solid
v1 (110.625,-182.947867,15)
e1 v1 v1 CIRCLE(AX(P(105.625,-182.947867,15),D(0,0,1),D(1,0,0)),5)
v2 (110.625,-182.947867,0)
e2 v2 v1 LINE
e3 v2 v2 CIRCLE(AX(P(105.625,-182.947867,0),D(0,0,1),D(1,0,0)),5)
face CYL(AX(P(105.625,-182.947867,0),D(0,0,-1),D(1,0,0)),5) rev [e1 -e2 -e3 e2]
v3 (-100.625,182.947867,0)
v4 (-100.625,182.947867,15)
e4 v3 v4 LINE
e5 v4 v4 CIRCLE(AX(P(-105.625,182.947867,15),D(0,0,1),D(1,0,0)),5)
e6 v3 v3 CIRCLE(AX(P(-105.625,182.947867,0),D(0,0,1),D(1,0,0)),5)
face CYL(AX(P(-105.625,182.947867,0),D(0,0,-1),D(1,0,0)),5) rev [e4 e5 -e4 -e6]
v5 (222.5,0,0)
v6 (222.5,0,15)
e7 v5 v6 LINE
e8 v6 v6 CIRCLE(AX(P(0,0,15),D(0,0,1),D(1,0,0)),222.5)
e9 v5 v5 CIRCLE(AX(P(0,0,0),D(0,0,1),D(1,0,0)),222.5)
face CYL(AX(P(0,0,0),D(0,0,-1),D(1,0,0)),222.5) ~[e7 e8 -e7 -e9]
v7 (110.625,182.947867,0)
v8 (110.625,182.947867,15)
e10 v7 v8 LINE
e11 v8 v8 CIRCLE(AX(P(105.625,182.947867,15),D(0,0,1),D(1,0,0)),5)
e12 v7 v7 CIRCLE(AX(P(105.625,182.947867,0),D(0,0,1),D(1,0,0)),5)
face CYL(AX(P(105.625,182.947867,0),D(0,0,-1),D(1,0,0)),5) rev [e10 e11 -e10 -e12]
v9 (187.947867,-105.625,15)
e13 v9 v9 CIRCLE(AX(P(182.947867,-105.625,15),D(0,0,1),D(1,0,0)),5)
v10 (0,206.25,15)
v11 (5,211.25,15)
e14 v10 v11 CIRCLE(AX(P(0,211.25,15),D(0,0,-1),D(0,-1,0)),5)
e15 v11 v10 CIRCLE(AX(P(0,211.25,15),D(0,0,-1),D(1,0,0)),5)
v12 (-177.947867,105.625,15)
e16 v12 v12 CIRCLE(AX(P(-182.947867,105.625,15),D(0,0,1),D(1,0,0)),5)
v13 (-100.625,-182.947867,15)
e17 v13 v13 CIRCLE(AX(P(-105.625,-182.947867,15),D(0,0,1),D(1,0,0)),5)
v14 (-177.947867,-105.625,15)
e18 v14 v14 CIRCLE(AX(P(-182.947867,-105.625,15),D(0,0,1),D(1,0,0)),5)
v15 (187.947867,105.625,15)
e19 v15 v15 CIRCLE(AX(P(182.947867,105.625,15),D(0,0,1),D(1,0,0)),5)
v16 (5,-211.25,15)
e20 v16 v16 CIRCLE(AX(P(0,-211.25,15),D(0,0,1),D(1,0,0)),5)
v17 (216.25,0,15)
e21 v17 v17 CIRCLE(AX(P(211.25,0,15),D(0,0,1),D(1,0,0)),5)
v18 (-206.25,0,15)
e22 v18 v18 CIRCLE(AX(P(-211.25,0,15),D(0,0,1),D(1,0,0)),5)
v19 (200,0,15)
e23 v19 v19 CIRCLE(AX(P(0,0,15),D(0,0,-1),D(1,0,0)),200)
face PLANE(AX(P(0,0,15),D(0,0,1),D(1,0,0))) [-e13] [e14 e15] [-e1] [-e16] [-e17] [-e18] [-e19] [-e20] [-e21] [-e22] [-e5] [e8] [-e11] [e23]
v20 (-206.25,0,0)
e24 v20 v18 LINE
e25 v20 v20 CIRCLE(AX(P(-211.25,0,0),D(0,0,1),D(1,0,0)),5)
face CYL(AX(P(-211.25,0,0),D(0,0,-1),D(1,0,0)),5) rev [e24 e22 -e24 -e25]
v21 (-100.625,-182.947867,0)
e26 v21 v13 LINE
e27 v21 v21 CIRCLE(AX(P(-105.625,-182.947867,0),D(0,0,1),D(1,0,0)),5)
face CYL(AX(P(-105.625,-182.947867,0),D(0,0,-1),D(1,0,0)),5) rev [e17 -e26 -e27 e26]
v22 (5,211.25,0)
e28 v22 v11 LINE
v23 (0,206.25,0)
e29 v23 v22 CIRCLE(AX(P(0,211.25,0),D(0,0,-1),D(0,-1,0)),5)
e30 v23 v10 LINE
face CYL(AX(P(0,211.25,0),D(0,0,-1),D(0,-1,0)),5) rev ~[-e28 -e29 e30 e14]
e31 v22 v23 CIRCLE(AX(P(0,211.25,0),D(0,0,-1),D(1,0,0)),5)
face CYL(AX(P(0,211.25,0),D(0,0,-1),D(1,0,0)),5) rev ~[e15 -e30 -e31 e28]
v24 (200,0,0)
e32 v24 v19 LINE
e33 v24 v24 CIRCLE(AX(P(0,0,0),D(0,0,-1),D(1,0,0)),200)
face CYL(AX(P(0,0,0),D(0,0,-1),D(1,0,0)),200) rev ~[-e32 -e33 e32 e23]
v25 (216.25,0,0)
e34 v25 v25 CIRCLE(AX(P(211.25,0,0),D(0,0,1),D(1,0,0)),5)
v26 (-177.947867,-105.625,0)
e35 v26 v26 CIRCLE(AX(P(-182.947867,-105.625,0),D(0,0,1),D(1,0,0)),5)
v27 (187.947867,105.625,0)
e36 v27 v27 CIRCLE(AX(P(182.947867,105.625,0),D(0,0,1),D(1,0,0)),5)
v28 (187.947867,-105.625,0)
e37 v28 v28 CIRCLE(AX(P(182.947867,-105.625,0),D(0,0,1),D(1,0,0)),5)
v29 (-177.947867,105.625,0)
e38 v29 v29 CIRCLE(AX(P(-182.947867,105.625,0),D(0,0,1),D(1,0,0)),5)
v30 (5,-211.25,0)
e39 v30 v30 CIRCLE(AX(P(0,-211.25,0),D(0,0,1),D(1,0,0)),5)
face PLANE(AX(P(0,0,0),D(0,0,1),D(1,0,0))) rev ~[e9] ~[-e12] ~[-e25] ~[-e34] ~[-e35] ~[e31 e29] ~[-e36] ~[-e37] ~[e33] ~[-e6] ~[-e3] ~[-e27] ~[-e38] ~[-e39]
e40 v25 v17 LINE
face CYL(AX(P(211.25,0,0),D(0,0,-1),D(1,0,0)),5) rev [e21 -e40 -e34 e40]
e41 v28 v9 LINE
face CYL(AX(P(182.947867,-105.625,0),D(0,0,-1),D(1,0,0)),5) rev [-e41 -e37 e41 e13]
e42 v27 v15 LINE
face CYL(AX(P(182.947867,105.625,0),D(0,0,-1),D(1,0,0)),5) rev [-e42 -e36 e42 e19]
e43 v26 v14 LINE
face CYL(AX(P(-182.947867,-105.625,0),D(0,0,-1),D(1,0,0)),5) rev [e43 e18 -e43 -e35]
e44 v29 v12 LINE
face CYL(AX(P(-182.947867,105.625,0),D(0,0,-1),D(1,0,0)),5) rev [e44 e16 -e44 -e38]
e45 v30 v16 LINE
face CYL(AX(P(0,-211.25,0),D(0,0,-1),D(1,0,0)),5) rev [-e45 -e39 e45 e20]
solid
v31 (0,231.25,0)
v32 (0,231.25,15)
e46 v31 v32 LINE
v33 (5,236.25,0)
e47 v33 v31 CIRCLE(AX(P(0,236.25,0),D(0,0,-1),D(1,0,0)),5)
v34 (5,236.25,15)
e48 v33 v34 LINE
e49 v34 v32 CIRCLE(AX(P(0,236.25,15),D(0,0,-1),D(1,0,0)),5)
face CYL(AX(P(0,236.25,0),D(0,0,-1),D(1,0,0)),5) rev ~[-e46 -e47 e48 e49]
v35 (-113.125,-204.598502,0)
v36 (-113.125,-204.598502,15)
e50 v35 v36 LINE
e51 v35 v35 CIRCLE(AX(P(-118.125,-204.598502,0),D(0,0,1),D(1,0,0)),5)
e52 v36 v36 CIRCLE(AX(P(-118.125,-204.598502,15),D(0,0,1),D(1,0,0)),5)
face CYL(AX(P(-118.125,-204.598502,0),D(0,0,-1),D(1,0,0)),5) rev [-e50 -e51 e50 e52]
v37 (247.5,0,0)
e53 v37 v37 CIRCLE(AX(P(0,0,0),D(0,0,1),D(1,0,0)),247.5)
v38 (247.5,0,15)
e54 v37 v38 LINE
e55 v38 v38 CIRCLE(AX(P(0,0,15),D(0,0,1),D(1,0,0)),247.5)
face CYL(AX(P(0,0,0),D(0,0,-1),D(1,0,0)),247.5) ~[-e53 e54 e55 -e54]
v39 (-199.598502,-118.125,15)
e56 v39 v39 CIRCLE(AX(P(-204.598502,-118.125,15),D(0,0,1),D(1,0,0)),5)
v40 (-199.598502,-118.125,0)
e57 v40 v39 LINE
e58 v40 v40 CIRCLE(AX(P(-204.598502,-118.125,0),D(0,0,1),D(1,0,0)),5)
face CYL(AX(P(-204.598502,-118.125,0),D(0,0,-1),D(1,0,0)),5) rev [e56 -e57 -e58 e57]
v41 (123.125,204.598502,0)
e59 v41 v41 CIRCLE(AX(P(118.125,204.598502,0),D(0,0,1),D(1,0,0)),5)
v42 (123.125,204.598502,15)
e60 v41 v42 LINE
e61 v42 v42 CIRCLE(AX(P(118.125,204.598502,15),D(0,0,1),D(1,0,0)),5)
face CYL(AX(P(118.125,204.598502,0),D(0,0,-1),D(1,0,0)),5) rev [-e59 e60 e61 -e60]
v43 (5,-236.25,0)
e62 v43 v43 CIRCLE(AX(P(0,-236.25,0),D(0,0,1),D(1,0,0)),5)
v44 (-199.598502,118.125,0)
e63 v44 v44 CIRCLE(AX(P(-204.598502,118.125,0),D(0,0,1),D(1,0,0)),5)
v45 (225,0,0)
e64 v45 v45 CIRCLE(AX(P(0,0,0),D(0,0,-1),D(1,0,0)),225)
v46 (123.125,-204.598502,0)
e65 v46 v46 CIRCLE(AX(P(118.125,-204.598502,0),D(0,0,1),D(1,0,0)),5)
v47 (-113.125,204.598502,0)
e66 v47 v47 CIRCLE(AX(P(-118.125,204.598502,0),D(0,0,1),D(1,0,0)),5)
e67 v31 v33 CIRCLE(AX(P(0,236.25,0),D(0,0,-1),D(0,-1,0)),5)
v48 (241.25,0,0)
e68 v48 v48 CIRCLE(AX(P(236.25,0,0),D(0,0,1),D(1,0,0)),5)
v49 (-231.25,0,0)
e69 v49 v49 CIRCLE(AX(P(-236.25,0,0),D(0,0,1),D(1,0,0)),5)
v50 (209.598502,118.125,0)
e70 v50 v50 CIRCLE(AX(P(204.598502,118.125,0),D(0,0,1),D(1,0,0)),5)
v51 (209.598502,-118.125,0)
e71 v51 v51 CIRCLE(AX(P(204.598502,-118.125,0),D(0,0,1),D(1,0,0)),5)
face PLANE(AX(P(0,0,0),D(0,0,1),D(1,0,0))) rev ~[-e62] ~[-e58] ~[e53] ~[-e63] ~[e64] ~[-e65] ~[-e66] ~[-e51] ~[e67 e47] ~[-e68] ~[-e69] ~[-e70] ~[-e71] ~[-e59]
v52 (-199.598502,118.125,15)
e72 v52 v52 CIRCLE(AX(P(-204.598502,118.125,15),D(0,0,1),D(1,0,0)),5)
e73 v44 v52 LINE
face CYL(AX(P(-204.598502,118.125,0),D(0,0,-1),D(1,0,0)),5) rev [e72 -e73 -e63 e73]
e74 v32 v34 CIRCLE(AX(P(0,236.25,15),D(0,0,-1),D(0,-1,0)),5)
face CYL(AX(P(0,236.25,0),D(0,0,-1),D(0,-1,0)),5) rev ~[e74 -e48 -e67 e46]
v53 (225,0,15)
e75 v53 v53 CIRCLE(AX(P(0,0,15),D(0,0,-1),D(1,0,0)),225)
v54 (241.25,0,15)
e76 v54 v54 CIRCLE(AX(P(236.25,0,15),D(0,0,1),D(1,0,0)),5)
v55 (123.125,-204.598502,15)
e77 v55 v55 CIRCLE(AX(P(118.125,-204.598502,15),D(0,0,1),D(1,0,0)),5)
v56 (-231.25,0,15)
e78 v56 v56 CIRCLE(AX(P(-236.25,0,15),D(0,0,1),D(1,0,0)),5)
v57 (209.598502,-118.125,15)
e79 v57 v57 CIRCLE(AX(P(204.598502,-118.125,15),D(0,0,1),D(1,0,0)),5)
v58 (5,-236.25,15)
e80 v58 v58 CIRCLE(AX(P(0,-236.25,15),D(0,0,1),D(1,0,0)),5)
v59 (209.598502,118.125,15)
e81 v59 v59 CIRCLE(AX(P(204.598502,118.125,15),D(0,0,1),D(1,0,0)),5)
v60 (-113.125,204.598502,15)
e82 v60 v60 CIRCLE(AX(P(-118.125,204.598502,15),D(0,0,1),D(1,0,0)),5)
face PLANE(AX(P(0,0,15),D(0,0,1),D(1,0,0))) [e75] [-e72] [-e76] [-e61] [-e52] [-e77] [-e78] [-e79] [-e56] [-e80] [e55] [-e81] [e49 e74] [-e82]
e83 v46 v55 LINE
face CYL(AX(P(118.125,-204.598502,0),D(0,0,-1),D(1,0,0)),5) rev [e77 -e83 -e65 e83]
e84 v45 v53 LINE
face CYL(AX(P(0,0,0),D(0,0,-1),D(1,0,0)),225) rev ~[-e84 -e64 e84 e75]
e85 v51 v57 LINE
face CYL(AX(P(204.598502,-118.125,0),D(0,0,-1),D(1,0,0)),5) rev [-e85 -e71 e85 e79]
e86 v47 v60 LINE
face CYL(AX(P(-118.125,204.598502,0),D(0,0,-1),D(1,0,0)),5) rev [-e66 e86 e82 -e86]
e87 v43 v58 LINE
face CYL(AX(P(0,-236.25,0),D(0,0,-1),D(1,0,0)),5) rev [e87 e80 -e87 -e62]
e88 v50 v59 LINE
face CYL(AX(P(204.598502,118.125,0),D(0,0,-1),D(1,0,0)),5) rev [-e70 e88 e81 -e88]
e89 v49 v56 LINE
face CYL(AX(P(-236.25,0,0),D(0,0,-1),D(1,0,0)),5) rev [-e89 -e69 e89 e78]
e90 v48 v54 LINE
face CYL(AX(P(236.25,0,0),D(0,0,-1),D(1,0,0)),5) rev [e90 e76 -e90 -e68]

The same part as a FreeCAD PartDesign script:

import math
import FreeCAD as App
import Part
import Sketcher

V = App.Vector

doc = App.newDocument("Part")
body = doc.addObject("PartDesign::Body", "Body")

# Sketch on XY plane
sketch1 = body.newObject("Sketcher::SketchObject", "Sketch")
sketch1.AttachmentSupport = (doc.getObject("XY_Plane"), [""])
sketch1.MapMode = "FlatFace"
sketch1.addGeometry(Part.Circle(V(0, 0, 0), V(0, 0, 1), 222), False)
sketch1.addGeometry(Part.Circle(V(-106, -183, 0), V(0, 0, 1), 5), False)
sketch1.addGeometry(Part.Circle(V(-183, -106, 0), V(0, 0, 1), 5), False)
sketch1.addGeometry(Part.Circle(V(0, -211, 0), V(0, 0, 1), 5), False)
sketch1.addGeometry(Part.Circle(V(106, -183, 0), V(0, 0, 1), 5), False)
sketch1.addGeometry(Part.Circle(V(183, -106, 0), V(0, 0, 1), 5), False)
sketch1.addGeometry(Part.Circle(V(-211, 0, 0), V(0, 0, 1), 5), False)
sketch1.addGeometry(Part.Circle(V(-183, 106, 0), V(0, 0, 1), 5), False)
sketch1.addGeometry(Part.Circle(V(-106, 183, 0), V(0, 0, 1), 5), False)
sketch1.addGeometry(Part.Circle(V(0, 0, 0), V(0, 0, 1), 200), False)
sketch1.addGeometry(Part.Circle(V(211, 0, 0), V(0, 0, 1), 5), False)
sketch1.addGeometry(Part.Circle(V(183, 106, 0), V(0, 0, 1), 5), False)
sketch1.addGeometry(Part.ArcOfCircle(Part.Circle(V(0, 211, 0), V(0, 0, 1), 5), math.radians(0), math.radians(270)), False)
sketch1.addGeometry(Part.ArcOfCircle(Part.Circle(V(0, 211, 0), V(0, 0, 1), 5), math.radians(-90), math.radians(0)), False)
sketch1.addGeometry(Part.Circle(V(106, 183, 0), V(0, 0, 1), 5), False)
sketch1.addConstraint(Sketcher.Constraint("Tangent", 12, 1, 13, 2))
sketch1.addConstraint(Sketcher.Constraint("Coincident", 13, 1, 12, 2))
sketch1.addConstraint(Sketcher.Constraint("Coincident", 0, 3, -1, 1))
sketch1.addConstraint(Sketcher.Constraint("Coincident", 9, 3, -1, 1))
sketch1.addConstraint(Sketcher.Constraint("Equal", 1, 2))
sketch1.addConstraint(Sketcher.Constraint("Equal", 2, 3))
sketch1.addConstraint(Sketcher.Constraint("Equal", 3, 4))
sketch1.addConstraint(Sketcher.Constraint("Equal", 4, 5))
sketch1.addConstraint(Sketcher.Constraint("Equal", 5, 6))
sketch1.addConstraint(Sketcher.Constraint("Equal", 6, 7))
sketch1.addConstraint(Sketcher.Constraint("Equal", 7, 8))
sketch1.addConstraint(Sketcher.Constraint("Equal", 8, 10))
sketch1.addConstraint(Sketcher.Constraint("Equal", 10, 11))
sketch1.addConstraint(Sketcher.Constraint("Equal", 11, 12))
sketch1.addConstraint(Sketcher.Constraint("Equal", 13, 14))
sketch1.addConstraint(Sketcher.Constraint("Symmetric", 5, 3, 7, 3, -1, 1))
sketch1.addConstraint(Sketcher.Constraint("Symmetric", 4, 3, 8, 3, -1, 1))
sketch1.addConstraint(Sketcher.Constraint("Symmetric", 6, 3, 10, 3, -1, 1))
sketch1.addConstraint(Sketcher.Constraint("Symmetric", 2, 3, 11, 3, -1, 1))
sketch1.addConstraint(Sketcher.Constraint("Symmetric", 3, 3, 12, 3, -1, 1))
sketch1.addConstraint(Sketcher.Constraint("Symmetric", 1, 3, 14, 3, -1, 1))
sketch1.addConstraint(Sketcher.Constraint("Symmetric", 1, 3, 4, 3, -2))
sketch1.addConstraint(Sketcher.Constraint("Symmetric", 2, 3, 5, 3, -2))
sketch1.addConstraint(Sketcher.Constraint("PointOnObject", 3, 3, -2))
sketch1.addConstraint(Sketcher.Constraint("PointOnObject", 6, 3, -1))
sketch1.addConstraint(Sketcher.Constraint("PointOnObject", 13, 1, -2))
sketch1.addConstraint(Sketcher.Constraint("Horizontal", 13, 3, 12, 1))
sketch1.addConstraint(Sketcher.Constraint("Diameter", 0, 445.0))
sketch1.addConstraint(Sketcher.Constraint("Diameter", 1, 10.0))
sketch1.addConstraint(Sketcher.Constraint("Diameter", 9, 400.0))
sketch1.addConstraint(Sketcher.Constraint("DistanceY", 3, 3, -1, 1, 211.25))
sketch1.addConstraint(Sketcher.Constraint("DistanceX", 6, 3, -1, 1, 211.25))
sketch1.addConstraint(Sketcher.Constraint("DistanceX", 1, 3, 4, 3, 211.25))
sketch1.addConstraint(Sketcher.Constraint("DistanceY", 2, 3, 7, 3, 211.25))
sketch1.addConstraint(Sketcher.Constraint("DistanceY", 1, 3, -1, 1, 182.947867))
sketch1.addConstraint(Sketcher.Constraint("DistanceX", 2, 3, -1, 1, 182.947867))
pad1 = body.newObject("PartDesign::Pad", "Pad")
pad1.Profile = sketch1
pad1.Length = 15
body2 = doc.addObject("PartDesign::Body", "Body001")

# Sketch on XY plane
sketch2 = body2.newObject("Sketcher::SketchObject", "Sketch001")
sketch2.AttachmentSupport = (doc.getObject("XY_Plane001"), [""])
sketch2.MapMode = "FlatFace"
sketch2.addGeometry(Part.Circle(V(0, 0, 0), V(0, 0, 1), 248), False)
sketch2.addGeometry(Part.Circle(V(-118, -205, 0), V(0, 0, 1), 5), False)
sketch2.addGeometry(Part.Circle(V(-205, -118, 0), V(0, 0, 1), 5), False)
sketch2.addGeometry(Part.Circle(V(0, -236, 0), V(0, 0, 1), 5), False)
sketch2.addGeometry(Part.Circle(V(118, -205, 0), V(0, 0, 1), 5), False)
sketch2.addGeometry(Part.Circle(V(205, -118, 0), V(0, 0, 1), 5), False)
sketch2.addGeometry(Part.Circle(V(-236, 0, 0), V(0, 0, 1), 5), False)
sketch2.addGeometry(Part.Circle(V(-205, 118, 0), V(0, 0, 1), 5), False)
sketch2.addGeometry(Part.Circle(V(0, 0, 0), V(0, 0, 1), 225), False)
sketch2.addGeometry(Part.Circle(V(-118, 205, 0), V(0, 0, 1), 5), False)
sketch2.addGeometry(Part.Circle(V(236, 0, 0), V(0, 0, 1), 5), False)
sketch2.addGeometry(Part.Circle(V(205, 118, 0), V(0, 0, 1), 5), False)
sketch2.addGeometry(Part.ArcOfCircle(Part.Circle(V(0, 236, 0), V(0, 0, 1), 5), math.radians(0), math.radians(270)), False)
sketch2.addGeometry(Part.ArcOfCircle(Part.Circle(V(0, 236, 0), V(0, 0, 1), 5), math.radians(-90), math.radians(0)), False)
sketch2.addGeometry(Part.Circle(V(118, 205, 0), V(0, 0, 1), 5), False)
sketch2.addConstraint(Sketcher.Constraint("Tangent", 12, 1, 13, 2))
sketch2.addConstraint(Sketcher.Constraint("Coincident", 13, 1, 12, 2))
sketch2.addConstraint(Sketcher.Constraint("Coincident", 0, 3, -1, 1))
sketch2.addConstraint(Sketcher.Constraint("Coincident", 8, 3, -1, 1))
sketch2.addConstraint(Sketcher.Constraint("Equal", 1, 2))
sketch2.addConstraint(Sketcher.Constraint("Equal", 2, 3))
sketch2.addConstraint(Sketcher.Constraint("Equal", 3, 4))
sketch2.addConstraint(Sketcher.Constraint("Equal", 4, 5))
sketch2.addConstraint(Sketcher.Constraint("Equal", 5, 6))
sketch2.addConstraint(Sketcher.Constraint("Equal", 6, 7))
sketch2.addConstraint(Sketcher.Constraint("Equal", 7, 9))
sketch2.addConstraint(Sketcher.Constraint("Equal", 9, 10))
sketch2.addConstraint(Sketcher.Constraint("Equal", 10, 11))
sketch2.addConstraint(Sketcher.Constraint("Equal", 11, 12))
sketch2.addConstraint(Sketcher.Constraint("Equal", 13, 14))
sketch2.addConstraint(Sketcher.Constraint("Symmetric", 5, 3, 7, 3, -1, 1))
sketch2.addConstraint(Sketcher.Constraint("Symmetric", 4, 3, 9, 3, -1, 1))
sketch2.addConstraint(Sketcher.Constraint("Symmetric", 6, 3, 10, 3, -1, 1))
sketch2.addConstraint(Sketcher.Constraint("Symmetric", 2, 3, 11, 3, -1, 1))
sketch2.addConstraint(Sketcher.Constraint("Symmetric", 3, 3, 12, 3, -1, 1))
sketch2.addConstraint(Sketcher.Constraint("Symmetric", 1, 3, 14, 3, -1, 1))
sketch2.addConstraint(Sketcher.Constraint("Symmetric", 1, 3, 4, 3, -2))
sketch2.addConstraint(Sketcher.Constraint("Symmetric", 2, 3, 5, 3, -2))
sketch2.addConstraint(Sketcher.Constraint("PointOnObject", 3, 3, -2))
sketch2.addConstraint(Sketcher.Constraint("PointOnObject", 6, 3, -1))
sketch2.addConstraint(Sketcher.Constraint("PointOnObject", 13, 1, -2))
sketch2.addConstraint(Sketcher.Constraint("Horizontal", 13, 3, 12, 1))
sketch2.addConstraint(Sketcher.Constraint("Diameter", 0, 495.0))
sketch2.addConstraint(Sketcher.Constraint("Diameter", 1, 10.0))
sketch2.addConstraint(Sketcher.Constraint("Diameter", 8, 450.0))
sketch2.addConstraint(Sketcher.Constraint("DistanceY", 3, 3, -1, 1, 236.25))
sketch2.addConstraint(Sketcher.Constraint("DistanceX", 6, 3, -1, 1, 236.25))
sketch2.addConstraint(Sketcher.Constraint("DistanceX", 1, 3, 4, 3, 236.25))
sketch2.addConstraint(Sketcher.Constraint("DistanceY", 2, 3, 7, 3, 236.25))
sketch2.addConstraint(Sketcher.Constraint("DistanceY", 1, 3, -1, 1, 204.598502))
sketch2.addConstraint(Sketcher.Constraint("DistanceX", 2, 3, -1, 1, 204.598502))
pad2 = body2.newObject("PartDesign::Pad", "Pad001")
pad2.Profile = sketch2
pad2.Length = 15

doc.recompute()
